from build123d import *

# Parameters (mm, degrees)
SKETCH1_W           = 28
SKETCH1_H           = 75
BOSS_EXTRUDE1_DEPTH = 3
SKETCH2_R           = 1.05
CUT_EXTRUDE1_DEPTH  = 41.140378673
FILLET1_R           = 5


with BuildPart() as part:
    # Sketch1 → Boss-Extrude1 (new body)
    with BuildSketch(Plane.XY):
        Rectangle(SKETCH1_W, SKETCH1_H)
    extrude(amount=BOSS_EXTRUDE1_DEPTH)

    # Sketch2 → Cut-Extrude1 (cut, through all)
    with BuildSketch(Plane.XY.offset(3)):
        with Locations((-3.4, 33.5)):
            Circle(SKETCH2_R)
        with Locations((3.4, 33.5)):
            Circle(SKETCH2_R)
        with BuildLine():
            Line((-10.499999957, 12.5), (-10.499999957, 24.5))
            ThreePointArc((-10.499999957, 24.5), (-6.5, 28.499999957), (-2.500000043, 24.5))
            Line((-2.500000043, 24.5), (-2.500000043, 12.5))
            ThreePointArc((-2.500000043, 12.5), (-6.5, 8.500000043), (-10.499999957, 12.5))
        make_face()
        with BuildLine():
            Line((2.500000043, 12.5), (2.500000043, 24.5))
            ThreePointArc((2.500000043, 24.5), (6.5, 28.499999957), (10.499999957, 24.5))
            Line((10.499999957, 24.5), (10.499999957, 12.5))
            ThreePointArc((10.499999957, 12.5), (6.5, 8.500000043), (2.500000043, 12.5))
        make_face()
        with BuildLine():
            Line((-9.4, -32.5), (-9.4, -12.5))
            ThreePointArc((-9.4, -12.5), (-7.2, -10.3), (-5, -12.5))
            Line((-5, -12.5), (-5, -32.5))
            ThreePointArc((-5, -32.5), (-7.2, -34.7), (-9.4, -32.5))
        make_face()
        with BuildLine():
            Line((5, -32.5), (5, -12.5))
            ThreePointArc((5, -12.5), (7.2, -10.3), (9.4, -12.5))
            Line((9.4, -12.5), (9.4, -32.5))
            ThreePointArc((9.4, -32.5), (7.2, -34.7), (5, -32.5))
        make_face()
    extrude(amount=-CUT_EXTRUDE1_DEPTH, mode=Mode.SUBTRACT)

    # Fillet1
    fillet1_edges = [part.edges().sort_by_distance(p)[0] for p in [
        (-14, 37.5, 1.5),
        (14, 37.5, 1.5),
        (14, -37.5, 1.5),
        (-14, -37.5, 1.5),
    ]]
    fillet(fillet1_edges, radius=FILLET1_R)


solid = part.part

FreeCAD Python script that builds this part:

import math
import FreeCAD as App
import Part
import Sketcher

V = App.Vector


def edges_at(feature, points):
    """Names of the edges that pass closest to the given points."""
    edges = feature.Shape.Edges
    near = lambda p: min(range(len(edges)), key=lambda i: edges[i].distToShape(Part.Vertex(*p))[0])
    return sorted({f"Edge{near(p) + 1}" for p in points})

doc = App.newDocument("Part")
body = doc.addObject("PartDesign::Body", "Body")

sketch1 = body.newObject("Sketcher::SketchObject", "Sketch")
sketch1.AttachmentSupport = (doc.getObject("XY_Plane"), [""])
sketch1.MapMode = "FlatFace"
sketch1.addGeometry(Part.LineSegment(V(-14, 38, 0), V(-14, -38, 0)), False)
sketch1.addGeometry(Part.LineSegment(V(-14, -38, 0), V(14, -38, 0)), False)
sketch1.addGeometry(Part.LineSegment(V(14, -38, 0), V(14, 38, 0)), False)
sketch1.addGeometry(Part.LineSegment(V(14, 38, 0), V(-14, 38, 0)), False)
sketch1.addConstraint(Sketcher.Constraint("Coincident", 0, 2, 1, 1))
sketch1.addConstraint(Sketcher.Constraint("Coincident", 1, 2, 2, 1))
sketch1.addConstraint(Sketcher.Constraint("Coincident", 2, 2, 3, 1))
sketch1.addConstraint(Sketcher.Constraint("Coincident", 3, 2, 0, 1))
sketch1.addConstraint(Sketcher.Constraint("Vertical", 0))
sketch1.addConstraint(Sketcher.Constraint("Horizontal", 1))
sketch1.addConstraint(Sketcher.Constraint("Vertical", 2))
sketch1.addConstraint(Sketcher.Constraint("Horizontal", 3))
sketch1.addConstraint(Sketcher.Constraint("Symmetric", 0, 2, 2, 2, -1, 1))
sketch1.addConstraint(Sketcher.Constraint("DistanceX", 1, 1, 1, 2, 28.0))
sketch1.addConstraint(Sketcher.Constraint("DistanceY", 0, 2, 0, 1, 75.0))
pad1 = body.newObject("PartDesign::Pad", "Pad")
pad1.Profile = sketch1
pad1.Length = 3

sketch2 = body.newObject("Sketcher::SketchObject", "Sketch001")
sketch2.AttachmentSupport = (doc.getObject("XY_Plane"), [""])
sketch2.MapMode = "FlatFace"
sketch2.AttachmentOffset = App.Placement(V(0, 0, 3), App.Rotation())
sketch2.addGeometry(Part.Circle(V(-3.4, 33.5, 0), V(0, 0, 1), 1.1), False)
sketch2.addGeometry(Part.Circle(V(3.4, 33.5, 0), V(0, 0, 1), 1.1), False)
sketch2.addGeometry(Part.LineSegment(V(-10.5, 24.5, 0), V(-10.5, 12.5, 0)), False)
sketch2.addGeometry(Part.ArcOfCircle(Part.Circle(V(-6.5, 12.5, 0), V(0, 0, 1), 4), math.radians(180), math.radians(360)), False)
sketch2.addGeometry(Part.LineSegment(V(-2.5, 12.5, 0), V(-2.5, 24.5, 0)), False)
sketch2.addGeometry(Part.ArcOfCircle(Part.Circle(V(-6.5, 24.5, 0), V(0, 0, 1), 4), math.radians(0), math.radians(180)), False)
sketch2.addGeometry(Part.LineSegment(V(2.5, 24.5, 0), V(2.5, 12.5, 0)), False)
sketch2.addGeometry(Part.ArcOfCircle(Part.Circle(V(6.5, 12.5, 0), V(0, 0, 1), 4), math.radians(180), math.radians(360)), False)
sketch2.addGeometry(Part.LineSegment(V(10.5, 12.5, 0), V(10.5, 24.5, 0)), False)
sketch2.addGeometry(Part.ArcOfCircle(Part.Circle(V(6.5, 24.5, 0), V(0, 0, 1), 4), math.radians(0), math.radians(180)), False)
sketch2.addGeometry(Part.LineSegment(V(-9.4, -12.5, 0), V(-9.4, -32.5, 0)), False)
sketch2.addGeometry(Part.ArcOfCircle(Part.Circle(V(-7.2, -32.5, 0), V(0, 0, 1), 2.2), math.radians(180), math.radians(360)), False)
sketch2.addGeometry(Part.LineSegment(V(-5, -32.5, 0), V(-5, -12.5, 0)), False)
sketch2.addGeometry(Part.ArcOfCircle(Part.Circle(V(-7.2, -12.5, 0), V(0, 0, 1), 2.2), math.radians(0), math.radians(180)), False)
sketch2.addGeometry(Part.LineSegment(V(5, -12.5, 0), V(5, -32.5, 0)), False)
sketch2.addGeometry(Part.ArcOfCircle(Part.Circle(V(7.2, -32.5, 0), V(0, 0, 1), 2.2), math.radians(180), math.radians(360)), False)
sketch2.addGeometry(Part.LineSegment(V(9.4, -32.5, 0), V(9.4, -12.5, 0)), False)
sketch2.addGeometry(Part.ArcOfCircle(Part.Circle(V(7.2, -12.5, 0), V(0, 0, 1), 2.2), math.radians(0), math.radians(180)), False)
sketch2.addConstraint(Sketcher.Constraint("Tangent", 2, 2, 3, 1))
sketch2.addConstraint(Sketcher.Constraint("Tangent", 3, 2, 4, 1))
sketch2.addConstraint(Sketcher.Constraint("Tangent", 4, 2, 5, 1))
sketch2.addConstraint(Sketcher.Constraint("Tangent", 5, 2, 2, 1))
sketch2.addConstraint(Sketcher.Constraint("Tangent", 6, 2, 7, 1))
sketch2.addConstraint(Sketcher.Constraint("Tangent", 7, 2, 8, 1))
sketch2.addConstraint(Sketcher.Constraint("Tangent", 8, 2, 9, 1))
sketch2.addConstraint(Sketcher.Constraint("Tangent", 9, 2, 6, 1))
sketch2.addConstraint(Sketcher.Constraint("Tangent", 10, 2, 11, 1))
sketch2.addConstraint(Sketcher.Constraint("Tangent", 11, 2, 12, 1))
sketch2.addConstraint(Sketcher.Constraint("Tangent", 12, 2, 13, 1))
sketch2.addConstraint(Sketcher.Constraint("Tangent", 13, 2, 10, 1))
sketch2.addConstraint(Sketcher.Constraint("Tangent", 14, 2, 15, 1))
sketch2.addConstraint(Sketcher.Constraint("Tangent", 15, 2, 16, 1))
sketch2.addConstraint(Sketcher.Constraint("Tangent", 16, 2, 17, 1))
sketch2.addConstraint(Sketcher.Constraint("Tangent", 17, 2, 14, 1))
sketch2.addConstraint(Sketcher.Constraint("Vertical", 2))
sketch2.addConstraint(Sketcher.Constraint("Vertical", 4))
sketch2.addConstraint(Sketcher.Constraint("Vertical", 6))
sketch2.addConstraint(Sketcher.Constraint("Vertical", 8))
sketch2.addConstraint(Sketcher.Constraint("Vertical", 10))
sketch2.addConstraint(Sketcher.Constraint("Vertical", 12))
sketch2.addConstraint(Sketcher.Constraint("Vertical", 14))
sketch2.addConstraint(Sketcher.Constraint("Vertical", 16))
sketch2.addConstraint(Sketcher.Constraint("Equal", 0, 1))
sketch2.addConstraint(Sketcher.Constraint("Equal", 5, 7))
sketch2.addConstraint(Sketcher.Constraint("Equal", 13, 15))
sketch2.addConstraint(Sketcher.Constraint("Symmetric", 0, 3, 1, 3, -2))
sketch2.addConstraint(Sketcher.Constraint("Symmetric", 3, 3, 7, 3, -2))
sketch2.addConstraint(Sketcher.Constraint("Symmetric", 11, 3, 15, 3, -2))
sketch2.addConstraint(Sketcher.Constraint("Horizontal", 5, 3, 9, 3))
sketch2.addConstraint(Sketcher.Constraint("Horizontal", 13, 3, 17, 3))
sketch2.addConstraint(Sketcher.Constraint("Radius", 3, 4.0))
sketch2.addConstraint(Sketcher.Constraint("Diameter", 0, 2.1))
sketch2.addConstraint(Sketcher.Constraint("Radius", 11, 2.2))
sketch2.addConstraint(Sketcher.Constraint("DistanceY", 2, 2, 2, 1, 12.0))
sketch2.addConstraint(Sketcher.Constraint("DistanceY", 10, 2, 10, 1, 20.0))
sketch2.addConstraint(Sketcher.Constraint("DistanceX", 11, 2, -1, 1, 5.0))
sketch2.addConstraint(Sketcher.Constraint("DistanceY", 3, 3, 0, 3, 21.0))
sketch2.addConstraint(Sketcher.Constraint("DistanceX", 3, 3, 7, 3, 13.0))
sketch2.addConstraint(Sketcher.Constraint("DistanceY", 11, 3, 3, 3, 45.0))
sketch2.addConstraint(Sketcher.Constraint("DistanceX", 0, 3, -1, 1, 3.4))
sketch2.addConstraint(Sketcher.Constraint("DistanceY", -1, 1, 0, 3, 33.5))
pocket1 = body.newObject("PartDesign::Pocket", "Pocket")
pocket1.Profile = sketch2
pocket1.Type = "ThroughAll"
doc.recompute()

fillet = body.newObject("PartDesign::Fillet", "Fillet")
fillet.Base = (pocket1, edges_at(pocket1, [
    (-14, 37.5, 1.5),
    (14, 37.5, 1.5),
    (14, -37.5, 1.5),
    (-14, -37.5, 1.5),
]))
fillet.Radius = 5

doc.recompute()
